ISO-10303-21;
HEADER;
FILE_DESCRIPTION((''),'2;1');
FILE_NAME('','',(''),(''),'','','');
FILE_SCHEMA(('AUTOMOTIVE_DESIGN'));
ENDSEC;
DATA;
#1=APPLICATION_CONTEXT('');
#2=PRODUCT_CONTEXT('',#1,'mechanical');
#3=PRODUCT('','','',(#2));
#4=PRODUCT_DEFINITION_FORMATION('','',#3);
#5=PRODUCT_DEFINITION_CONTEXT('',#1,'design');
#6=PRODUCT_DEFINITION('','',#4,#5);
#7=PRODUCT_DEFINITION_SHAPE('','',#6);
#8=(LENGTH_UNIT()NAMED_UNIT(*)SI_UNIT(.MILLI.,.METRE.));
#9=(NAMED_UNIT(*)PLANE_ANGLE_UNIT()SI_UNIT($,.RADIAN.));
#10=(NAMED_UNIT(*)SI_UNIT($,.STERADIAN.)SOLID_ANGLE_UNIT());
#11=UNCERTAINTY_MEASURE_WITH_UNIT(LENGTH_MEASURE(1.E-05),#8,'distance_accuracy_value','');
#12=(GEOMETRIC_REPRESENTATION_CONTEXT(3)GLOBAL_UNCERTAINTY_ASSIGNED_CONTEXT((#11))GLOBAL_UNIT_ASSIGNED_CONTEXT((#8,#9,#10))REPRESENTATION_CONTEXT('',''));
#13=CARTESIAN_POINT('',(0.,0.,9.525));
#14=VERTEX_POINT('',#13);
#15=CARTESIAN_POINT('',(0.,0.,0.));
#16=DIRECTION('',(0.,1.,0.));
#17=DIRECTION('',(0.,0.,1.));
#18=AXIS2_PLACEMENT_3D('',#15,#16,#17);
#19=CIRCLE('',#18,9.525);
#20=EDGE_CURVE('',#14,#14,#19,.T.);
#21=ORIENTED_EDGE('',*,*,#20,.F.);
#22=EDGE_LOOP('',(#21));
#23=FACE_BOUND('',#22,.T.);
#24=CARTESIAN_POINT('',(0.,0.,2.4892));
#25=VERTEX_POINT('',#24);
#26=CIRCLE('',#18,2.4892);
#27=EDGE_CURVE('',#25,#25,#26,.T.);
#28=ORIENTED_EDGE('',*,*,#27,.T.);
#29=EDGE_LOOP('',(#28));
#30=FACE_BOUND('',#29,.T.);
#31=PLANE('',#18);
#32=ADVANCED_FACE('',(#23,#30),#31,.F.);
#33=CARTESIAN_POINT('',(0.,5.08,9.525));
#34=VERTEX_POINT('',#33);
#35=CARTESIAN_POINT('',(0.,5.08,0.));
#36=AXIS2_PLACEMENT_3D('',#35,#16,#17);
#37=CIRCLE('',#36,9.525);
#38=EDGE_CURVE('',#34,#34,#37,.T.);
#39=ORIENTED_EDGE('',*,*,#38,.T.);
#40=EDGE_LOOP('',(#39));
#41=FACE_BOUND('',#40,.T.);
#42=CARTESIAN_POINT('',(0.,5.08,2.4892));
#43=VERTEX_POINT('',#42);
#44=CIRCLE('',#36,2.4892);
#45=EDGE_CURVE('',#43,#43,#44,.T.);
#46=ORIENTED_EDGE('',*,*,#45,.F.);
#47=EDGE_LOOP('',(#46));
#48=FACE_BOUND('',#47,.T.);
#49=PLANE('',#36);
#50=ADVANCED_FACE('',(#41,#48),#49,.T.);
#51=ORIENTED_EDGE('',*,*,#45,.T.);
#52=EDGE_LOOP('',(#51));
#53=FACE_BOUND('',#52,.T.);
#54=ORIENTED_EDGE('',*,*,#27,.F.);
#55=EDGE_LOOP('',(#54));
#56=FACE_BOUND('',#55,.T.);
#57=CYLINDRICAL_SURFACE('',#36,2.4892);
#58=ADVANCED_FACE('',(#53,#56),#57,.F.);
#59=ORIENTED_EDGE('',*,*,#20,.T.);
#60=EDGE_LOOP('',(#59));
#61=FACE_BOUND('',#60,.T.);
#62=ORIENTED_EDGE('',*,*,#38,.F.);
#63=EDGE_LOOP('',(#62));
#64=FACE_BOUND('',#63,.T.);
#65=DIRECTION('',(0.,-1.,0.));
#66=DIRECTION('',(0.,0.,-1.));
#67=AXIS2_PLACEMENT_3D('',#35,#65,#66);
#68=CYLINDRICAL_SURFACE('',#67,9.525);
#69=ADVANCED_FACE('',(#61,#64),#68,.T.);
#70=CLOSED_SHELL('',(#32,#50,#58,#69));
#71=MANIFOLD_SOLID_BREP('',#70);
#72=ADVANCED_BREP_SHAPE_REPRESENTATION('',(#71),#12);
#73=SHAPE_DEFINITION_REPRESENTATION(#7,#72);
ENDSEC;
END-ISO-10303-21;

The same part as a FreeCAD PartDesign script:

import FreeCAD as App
import Part
import Sketcher

V = App.Vector
Q = App.Units.Quantity

doc = App.newDocument("Part")
body = doc.addObject("PartDesign::Body", "Body")

# Sketch on XZ plane
sketch1 = body.newObject("Sketcher::SketchObject", "Sketch")
sketch1.AttachmentSupport = (doc.getObject("XZ_Plane"), [""])
sketch1.MapMode = "FlatFace"
sketch1.addGeometry(Part.Circle(V(0, 0, 0), V(0, 0, 1), 10), False)
sketch1.addConstraint([
    Sketcher.Constraint("Coincident", 0, 3, -1, 1),
    Sketcher.Constraint("Diameter", 0, Q("0.75 in")),
])
pad1 = body.newObject("PartDesign::Pad", "Pad")
pad1.Profile = sketch1
pad1.Length = Q("0.2 in")
pad1.Reversed = True

# Sketch on XZ plane
sketch2 = body.newObject("Sketcher::SketchObject", "Sketch001")
sketch2.AttachmentSupport = (doc.getObject("XZ_Plane"), [""])
sketch2.MapMode = "FlatFace"
sketch2.AttachmentOffset = App.Placement(V(0, 0, -0.2 * 25.4), App.Rotation())
sketch2.addGeometry(Part.Circle(V(0, 0, 0), V(0, 0, 1), 2.5), False)
sketch2.addConstraint([
    Sketcher.Constraint("Coincident", 0, 3, -1, 1),
    Sketcher.Constraint("Diameter", 0, Q("0.196 in")),
])
doc.recompute()
hole = body.newObject("PartDesign::Hole", "Hole")
hole.Profile = sketch2
hole.ThreadType = "None"
hole.Diameter = Q("0.196 in")
hole.DepthType = "ThroughAll"
hole.Reversed = True

doc.recompute()
